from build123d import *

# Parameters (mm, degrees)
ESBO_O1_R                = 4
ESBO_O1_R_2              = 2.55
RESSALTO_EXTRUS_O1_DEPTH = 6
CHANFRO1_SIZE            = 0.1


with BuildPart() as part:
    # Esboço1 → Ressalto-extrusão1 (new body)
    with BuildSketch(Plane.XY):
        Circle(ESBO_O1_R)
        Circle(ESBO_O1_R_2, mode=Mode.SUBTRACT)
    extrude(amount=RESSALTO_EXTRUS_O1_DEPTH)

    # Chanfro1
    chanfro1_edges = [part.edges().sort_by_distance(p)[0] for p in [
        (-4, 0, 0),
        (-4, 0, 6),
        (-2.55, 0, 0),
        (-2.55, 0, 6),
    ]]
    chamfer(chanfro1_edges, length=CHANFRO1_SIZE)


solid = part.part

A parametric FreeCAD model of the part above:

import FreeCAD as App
import Part
import Sketcher
from FreeCAD import Vector


def edges_at(feature, points):
    """Names of the edges that pass closest to the given points."""
    edges = feature.Shape.Edges
    near = lambda p: min(range(len(edges)), key=lambda i: edges[i].distToShape(Part.Vertex(*p))[0])
    return sorted({f"Edge{near(p) + 1}" for p in points})

doc = App.newDocument("Part")
params = doc.addObject("Spreadsheet::Sheet", "Params")
for row, (alias, value) in enumerate([
    ("sketch1_diameter", "8 mm"),
    ("sketch1_diameter2", "5.1 mm"),
    ("pad1_length", "6 mm"),
    ("chamfer_size", "0.1 mm"),
], start=1):
    params.set(f"A{row}", alias)
    params.set(f"B{row}", "=" + value)
    params.setAlias(f"B{row}", alias)

body = doc.addObject("PartDesign::Body", "Body")

sketch1 = body.newObject("Sketcher::SketchObject", "Sketch")
sketch1.AttachmentSupport = (doc.getObject("XY_Plane"), [""])
sketch1.MapMode = "FlatFace"
sketch1.addGeometry(Part.Circle(Vector(0, 0, 0), Vector(0, 0, 1), 4), False)
sketch1.addGeometry(Part.Circle(Vector(0, 0, 0), Vector(0, 0, 1), 2.55), False)
sketch1.addConstraint(Sketcher.Constraint("Coincident", 0, 3, -1, 1))
sketch1.addConstraint(Sketcher.Constraint("Coincident", 1, 3, -1, 1))
sketch1.addConstraint(Sketcher.Constraint("Diameter", 0, 8.0))
sketch1.addConstraint(Sketcher.Constraint("Diameter", 1, 5.1))
sketch1.setExpression("Constraints[2]", "Params.sketch1_diameter")
sketch1.setExpression("Constraints[3]", "Params.sketch1_diameter2")
pad1 = body.newObject("PartDesign::Pad", "Pad")
pad1.Profile = sketch1
pad1.setExpression("Length", "Params.pad1_length")
doc.recompute()

chamfer = body.newObject("PartDesign::Chamfer", "Chamfer")
chamfer.Base = (pad1, edges_at(pad1, [
    (-4, 0, 0),
    (-4, 0, 6),
    (-2.55, 0, 0),
    (-2.55, 0, 6),
]))
chamfer.setExpression("Size", "Params.chamfer_size")

doc.recompute()
